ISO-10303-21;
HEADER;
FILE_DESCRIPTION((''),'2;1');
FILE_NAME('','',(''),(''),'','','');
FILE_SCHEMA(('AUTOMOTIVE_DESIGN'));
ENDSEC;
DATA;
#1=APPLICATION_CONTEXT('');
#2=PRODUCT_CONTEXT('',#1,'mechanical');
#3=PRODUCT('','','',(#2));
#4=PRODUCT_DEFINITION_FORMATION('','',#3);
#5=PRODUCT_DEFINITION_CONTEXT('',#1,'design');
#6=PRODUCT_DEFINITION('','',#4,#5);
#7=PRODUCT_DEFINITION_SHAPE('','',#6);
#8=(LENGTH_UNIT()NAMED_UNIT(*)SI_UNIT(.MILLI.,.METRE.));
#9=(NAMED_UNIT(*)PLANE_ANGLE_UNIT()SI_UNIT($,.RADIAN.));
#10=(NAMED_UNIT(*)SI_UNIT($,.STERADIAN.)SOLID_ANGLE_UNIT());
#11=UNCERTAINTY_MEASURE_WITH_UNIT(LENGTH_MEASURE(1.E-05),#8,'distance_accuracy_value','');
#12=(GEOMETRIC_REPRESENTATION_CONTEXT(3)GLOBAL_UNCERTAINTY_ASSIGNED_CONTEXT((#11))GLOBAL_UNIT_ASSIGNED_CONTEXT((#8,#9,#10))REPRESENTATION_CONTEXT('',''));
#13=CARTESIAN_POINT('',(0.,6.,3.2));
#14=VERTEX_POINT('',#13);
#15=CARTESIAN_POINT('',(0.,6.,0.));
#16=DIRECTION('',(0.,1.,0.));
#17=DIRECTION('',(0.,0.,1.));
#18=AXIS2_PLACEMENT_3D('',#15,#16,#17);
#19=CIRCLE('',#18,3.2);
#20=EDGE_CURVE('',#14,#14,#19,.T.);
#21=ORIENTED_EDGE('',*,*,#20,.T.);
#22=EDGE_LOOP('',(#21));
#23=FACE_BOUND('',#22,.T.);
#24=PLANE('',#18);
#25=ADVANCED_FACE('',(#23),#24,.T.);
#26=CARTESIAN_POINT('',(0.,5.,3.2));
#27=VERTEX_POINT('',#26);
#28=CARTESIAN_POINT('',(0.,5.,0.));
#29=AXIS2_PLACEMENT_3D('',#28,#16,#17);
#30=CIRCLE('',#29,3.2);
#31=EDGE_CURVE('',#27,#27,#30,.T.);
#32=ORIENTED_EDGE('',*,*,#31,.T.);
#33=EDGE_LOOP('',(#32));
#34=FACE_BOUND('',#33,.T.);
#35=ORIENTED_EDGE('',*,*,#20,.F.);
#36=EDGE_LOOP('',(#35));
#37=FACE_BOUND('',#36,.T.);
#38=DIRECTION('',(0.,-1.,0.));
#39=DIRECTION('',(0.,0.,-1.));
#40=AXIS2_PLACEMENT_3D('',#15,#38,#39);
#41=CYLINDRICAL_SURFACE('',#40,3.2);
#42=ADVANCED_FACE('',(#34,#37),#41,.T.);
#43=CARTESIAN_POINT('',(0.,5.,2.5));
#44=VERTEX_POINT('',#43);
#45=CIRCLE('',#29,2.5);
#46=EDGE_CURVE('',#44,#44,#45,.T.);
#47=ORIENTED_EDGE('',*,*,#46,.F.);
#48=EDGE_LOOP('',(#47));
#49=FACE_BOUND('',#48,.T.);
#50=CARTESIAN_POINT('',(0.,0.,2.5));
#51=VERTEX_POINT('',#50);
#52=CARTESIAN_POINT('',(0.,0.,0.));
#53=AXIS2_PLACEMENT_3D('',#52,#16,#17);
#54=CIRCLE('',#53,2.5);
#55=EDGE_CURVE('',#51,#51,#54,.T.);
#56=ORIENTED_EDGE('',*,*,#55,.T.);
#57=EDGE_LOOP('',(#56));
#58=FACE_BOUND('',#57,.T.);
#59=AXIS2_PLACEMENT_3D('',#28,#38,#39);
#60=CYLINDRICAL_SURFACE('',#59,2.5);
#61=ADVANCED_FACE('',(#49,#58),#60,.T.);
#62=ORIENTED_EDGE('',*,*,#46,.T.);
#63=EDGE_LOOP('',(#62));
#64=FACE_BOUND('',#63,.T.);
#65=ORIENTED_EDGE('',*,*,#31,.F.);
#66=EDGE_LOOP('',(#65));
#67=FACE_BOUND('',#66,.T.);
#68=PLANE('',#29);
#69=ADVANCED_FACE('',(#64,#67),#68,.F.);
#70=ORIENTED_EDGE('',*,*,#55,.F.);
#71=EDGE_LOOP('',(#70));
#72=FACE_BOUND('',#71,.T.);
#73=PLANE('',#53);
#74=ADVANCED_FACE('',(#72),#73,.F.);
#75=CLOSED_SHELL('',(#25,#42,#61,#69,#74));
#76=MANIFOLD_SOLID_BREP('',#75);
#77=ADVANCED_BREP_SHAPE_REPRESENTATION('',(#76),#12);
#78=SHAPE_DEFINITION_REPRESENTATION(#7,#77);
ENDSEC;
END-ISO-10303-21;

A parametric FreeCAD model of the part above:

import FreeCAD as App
import Part
import Sketcher
from FreeCAD import Vector

doc = App.newDocument("Part")
params = doc.addObject("Spreadsheet::Sheet", "Params")
for row, (alias, value) in enumerate([
    ("sketch1_diameter", "5 mm"),
    ("pad1_length", "5 mm"),
    ("sketch2_diameter", "6.4 mm"),
    ("pad2_length", "1 mm"),
], start=1):
    params.set(f"A{row}", alias)
    params.set(f"B{row}", "=" + value)
    params.setAlias(f"B{row}", alias)

body = doc.addObject("PartDesign::Body", "Body")

# Sketch on XZ plane
sketch1 = body.newObject("Sketcher::SketchObject", "Sketch")
sketch1.AttachmentSupport = (doc.getObject("XZ_Plane"), [""])
sketch1.MapMode = "FlatFace"
sketch1.addGeometry(Part.Circle(Vector(0, 0, 0), Vector(0, 0, 1), 2.5), False)
sketch1.addConstraint([
    Sketcher.Constraint("Coincident", 0, 3, -1, 1),
    Sketcher.Constraint("Diameter", 0, 5.0),
])
sketch1.setExpression("Constraints[1]", "Params.sketch1_diameter")
pad1 = body.newObject("PartDesign::Pad", "Pad")
pad1.Profile = sketch1
pad1.setExpression("Length", "Params.pad1_length")
pad1.Reversed = True

# Sketch on XZ plane
sketch2 = body.newObject("Sketcher::SketchObject", "Sketch001")
sketch2.AttachmentSupport = (doc.getObject("XZ_Plane"), [""])
sketch2.MapMode = "FlatFace"
sketch2.AttachmentOffset = App.Placement(Vector(0, 0, -5), App.Rotation())
sketch2.addGeometry(Part.Circle(Vector(0, 0, 0), Vector(0, 0, 1), 3.2), False)
sketch2.addConstraint([
    Sketcher.Constraint("Coincident", 0, 3, -1, 1),
    Sketcher.Constraint("Diameter", 0, 6.4),
])
sketch2.setExpression("Constraints[1]", "Params.sketch2_diameter")
pad2 = body.newObject("PartDesign::Pad", "Pad001")
pad2.Profile = sketch2
pad2.setExpression("Length", "Params.pad2_length")
pad2.Reversed = True

doc.recompute()
